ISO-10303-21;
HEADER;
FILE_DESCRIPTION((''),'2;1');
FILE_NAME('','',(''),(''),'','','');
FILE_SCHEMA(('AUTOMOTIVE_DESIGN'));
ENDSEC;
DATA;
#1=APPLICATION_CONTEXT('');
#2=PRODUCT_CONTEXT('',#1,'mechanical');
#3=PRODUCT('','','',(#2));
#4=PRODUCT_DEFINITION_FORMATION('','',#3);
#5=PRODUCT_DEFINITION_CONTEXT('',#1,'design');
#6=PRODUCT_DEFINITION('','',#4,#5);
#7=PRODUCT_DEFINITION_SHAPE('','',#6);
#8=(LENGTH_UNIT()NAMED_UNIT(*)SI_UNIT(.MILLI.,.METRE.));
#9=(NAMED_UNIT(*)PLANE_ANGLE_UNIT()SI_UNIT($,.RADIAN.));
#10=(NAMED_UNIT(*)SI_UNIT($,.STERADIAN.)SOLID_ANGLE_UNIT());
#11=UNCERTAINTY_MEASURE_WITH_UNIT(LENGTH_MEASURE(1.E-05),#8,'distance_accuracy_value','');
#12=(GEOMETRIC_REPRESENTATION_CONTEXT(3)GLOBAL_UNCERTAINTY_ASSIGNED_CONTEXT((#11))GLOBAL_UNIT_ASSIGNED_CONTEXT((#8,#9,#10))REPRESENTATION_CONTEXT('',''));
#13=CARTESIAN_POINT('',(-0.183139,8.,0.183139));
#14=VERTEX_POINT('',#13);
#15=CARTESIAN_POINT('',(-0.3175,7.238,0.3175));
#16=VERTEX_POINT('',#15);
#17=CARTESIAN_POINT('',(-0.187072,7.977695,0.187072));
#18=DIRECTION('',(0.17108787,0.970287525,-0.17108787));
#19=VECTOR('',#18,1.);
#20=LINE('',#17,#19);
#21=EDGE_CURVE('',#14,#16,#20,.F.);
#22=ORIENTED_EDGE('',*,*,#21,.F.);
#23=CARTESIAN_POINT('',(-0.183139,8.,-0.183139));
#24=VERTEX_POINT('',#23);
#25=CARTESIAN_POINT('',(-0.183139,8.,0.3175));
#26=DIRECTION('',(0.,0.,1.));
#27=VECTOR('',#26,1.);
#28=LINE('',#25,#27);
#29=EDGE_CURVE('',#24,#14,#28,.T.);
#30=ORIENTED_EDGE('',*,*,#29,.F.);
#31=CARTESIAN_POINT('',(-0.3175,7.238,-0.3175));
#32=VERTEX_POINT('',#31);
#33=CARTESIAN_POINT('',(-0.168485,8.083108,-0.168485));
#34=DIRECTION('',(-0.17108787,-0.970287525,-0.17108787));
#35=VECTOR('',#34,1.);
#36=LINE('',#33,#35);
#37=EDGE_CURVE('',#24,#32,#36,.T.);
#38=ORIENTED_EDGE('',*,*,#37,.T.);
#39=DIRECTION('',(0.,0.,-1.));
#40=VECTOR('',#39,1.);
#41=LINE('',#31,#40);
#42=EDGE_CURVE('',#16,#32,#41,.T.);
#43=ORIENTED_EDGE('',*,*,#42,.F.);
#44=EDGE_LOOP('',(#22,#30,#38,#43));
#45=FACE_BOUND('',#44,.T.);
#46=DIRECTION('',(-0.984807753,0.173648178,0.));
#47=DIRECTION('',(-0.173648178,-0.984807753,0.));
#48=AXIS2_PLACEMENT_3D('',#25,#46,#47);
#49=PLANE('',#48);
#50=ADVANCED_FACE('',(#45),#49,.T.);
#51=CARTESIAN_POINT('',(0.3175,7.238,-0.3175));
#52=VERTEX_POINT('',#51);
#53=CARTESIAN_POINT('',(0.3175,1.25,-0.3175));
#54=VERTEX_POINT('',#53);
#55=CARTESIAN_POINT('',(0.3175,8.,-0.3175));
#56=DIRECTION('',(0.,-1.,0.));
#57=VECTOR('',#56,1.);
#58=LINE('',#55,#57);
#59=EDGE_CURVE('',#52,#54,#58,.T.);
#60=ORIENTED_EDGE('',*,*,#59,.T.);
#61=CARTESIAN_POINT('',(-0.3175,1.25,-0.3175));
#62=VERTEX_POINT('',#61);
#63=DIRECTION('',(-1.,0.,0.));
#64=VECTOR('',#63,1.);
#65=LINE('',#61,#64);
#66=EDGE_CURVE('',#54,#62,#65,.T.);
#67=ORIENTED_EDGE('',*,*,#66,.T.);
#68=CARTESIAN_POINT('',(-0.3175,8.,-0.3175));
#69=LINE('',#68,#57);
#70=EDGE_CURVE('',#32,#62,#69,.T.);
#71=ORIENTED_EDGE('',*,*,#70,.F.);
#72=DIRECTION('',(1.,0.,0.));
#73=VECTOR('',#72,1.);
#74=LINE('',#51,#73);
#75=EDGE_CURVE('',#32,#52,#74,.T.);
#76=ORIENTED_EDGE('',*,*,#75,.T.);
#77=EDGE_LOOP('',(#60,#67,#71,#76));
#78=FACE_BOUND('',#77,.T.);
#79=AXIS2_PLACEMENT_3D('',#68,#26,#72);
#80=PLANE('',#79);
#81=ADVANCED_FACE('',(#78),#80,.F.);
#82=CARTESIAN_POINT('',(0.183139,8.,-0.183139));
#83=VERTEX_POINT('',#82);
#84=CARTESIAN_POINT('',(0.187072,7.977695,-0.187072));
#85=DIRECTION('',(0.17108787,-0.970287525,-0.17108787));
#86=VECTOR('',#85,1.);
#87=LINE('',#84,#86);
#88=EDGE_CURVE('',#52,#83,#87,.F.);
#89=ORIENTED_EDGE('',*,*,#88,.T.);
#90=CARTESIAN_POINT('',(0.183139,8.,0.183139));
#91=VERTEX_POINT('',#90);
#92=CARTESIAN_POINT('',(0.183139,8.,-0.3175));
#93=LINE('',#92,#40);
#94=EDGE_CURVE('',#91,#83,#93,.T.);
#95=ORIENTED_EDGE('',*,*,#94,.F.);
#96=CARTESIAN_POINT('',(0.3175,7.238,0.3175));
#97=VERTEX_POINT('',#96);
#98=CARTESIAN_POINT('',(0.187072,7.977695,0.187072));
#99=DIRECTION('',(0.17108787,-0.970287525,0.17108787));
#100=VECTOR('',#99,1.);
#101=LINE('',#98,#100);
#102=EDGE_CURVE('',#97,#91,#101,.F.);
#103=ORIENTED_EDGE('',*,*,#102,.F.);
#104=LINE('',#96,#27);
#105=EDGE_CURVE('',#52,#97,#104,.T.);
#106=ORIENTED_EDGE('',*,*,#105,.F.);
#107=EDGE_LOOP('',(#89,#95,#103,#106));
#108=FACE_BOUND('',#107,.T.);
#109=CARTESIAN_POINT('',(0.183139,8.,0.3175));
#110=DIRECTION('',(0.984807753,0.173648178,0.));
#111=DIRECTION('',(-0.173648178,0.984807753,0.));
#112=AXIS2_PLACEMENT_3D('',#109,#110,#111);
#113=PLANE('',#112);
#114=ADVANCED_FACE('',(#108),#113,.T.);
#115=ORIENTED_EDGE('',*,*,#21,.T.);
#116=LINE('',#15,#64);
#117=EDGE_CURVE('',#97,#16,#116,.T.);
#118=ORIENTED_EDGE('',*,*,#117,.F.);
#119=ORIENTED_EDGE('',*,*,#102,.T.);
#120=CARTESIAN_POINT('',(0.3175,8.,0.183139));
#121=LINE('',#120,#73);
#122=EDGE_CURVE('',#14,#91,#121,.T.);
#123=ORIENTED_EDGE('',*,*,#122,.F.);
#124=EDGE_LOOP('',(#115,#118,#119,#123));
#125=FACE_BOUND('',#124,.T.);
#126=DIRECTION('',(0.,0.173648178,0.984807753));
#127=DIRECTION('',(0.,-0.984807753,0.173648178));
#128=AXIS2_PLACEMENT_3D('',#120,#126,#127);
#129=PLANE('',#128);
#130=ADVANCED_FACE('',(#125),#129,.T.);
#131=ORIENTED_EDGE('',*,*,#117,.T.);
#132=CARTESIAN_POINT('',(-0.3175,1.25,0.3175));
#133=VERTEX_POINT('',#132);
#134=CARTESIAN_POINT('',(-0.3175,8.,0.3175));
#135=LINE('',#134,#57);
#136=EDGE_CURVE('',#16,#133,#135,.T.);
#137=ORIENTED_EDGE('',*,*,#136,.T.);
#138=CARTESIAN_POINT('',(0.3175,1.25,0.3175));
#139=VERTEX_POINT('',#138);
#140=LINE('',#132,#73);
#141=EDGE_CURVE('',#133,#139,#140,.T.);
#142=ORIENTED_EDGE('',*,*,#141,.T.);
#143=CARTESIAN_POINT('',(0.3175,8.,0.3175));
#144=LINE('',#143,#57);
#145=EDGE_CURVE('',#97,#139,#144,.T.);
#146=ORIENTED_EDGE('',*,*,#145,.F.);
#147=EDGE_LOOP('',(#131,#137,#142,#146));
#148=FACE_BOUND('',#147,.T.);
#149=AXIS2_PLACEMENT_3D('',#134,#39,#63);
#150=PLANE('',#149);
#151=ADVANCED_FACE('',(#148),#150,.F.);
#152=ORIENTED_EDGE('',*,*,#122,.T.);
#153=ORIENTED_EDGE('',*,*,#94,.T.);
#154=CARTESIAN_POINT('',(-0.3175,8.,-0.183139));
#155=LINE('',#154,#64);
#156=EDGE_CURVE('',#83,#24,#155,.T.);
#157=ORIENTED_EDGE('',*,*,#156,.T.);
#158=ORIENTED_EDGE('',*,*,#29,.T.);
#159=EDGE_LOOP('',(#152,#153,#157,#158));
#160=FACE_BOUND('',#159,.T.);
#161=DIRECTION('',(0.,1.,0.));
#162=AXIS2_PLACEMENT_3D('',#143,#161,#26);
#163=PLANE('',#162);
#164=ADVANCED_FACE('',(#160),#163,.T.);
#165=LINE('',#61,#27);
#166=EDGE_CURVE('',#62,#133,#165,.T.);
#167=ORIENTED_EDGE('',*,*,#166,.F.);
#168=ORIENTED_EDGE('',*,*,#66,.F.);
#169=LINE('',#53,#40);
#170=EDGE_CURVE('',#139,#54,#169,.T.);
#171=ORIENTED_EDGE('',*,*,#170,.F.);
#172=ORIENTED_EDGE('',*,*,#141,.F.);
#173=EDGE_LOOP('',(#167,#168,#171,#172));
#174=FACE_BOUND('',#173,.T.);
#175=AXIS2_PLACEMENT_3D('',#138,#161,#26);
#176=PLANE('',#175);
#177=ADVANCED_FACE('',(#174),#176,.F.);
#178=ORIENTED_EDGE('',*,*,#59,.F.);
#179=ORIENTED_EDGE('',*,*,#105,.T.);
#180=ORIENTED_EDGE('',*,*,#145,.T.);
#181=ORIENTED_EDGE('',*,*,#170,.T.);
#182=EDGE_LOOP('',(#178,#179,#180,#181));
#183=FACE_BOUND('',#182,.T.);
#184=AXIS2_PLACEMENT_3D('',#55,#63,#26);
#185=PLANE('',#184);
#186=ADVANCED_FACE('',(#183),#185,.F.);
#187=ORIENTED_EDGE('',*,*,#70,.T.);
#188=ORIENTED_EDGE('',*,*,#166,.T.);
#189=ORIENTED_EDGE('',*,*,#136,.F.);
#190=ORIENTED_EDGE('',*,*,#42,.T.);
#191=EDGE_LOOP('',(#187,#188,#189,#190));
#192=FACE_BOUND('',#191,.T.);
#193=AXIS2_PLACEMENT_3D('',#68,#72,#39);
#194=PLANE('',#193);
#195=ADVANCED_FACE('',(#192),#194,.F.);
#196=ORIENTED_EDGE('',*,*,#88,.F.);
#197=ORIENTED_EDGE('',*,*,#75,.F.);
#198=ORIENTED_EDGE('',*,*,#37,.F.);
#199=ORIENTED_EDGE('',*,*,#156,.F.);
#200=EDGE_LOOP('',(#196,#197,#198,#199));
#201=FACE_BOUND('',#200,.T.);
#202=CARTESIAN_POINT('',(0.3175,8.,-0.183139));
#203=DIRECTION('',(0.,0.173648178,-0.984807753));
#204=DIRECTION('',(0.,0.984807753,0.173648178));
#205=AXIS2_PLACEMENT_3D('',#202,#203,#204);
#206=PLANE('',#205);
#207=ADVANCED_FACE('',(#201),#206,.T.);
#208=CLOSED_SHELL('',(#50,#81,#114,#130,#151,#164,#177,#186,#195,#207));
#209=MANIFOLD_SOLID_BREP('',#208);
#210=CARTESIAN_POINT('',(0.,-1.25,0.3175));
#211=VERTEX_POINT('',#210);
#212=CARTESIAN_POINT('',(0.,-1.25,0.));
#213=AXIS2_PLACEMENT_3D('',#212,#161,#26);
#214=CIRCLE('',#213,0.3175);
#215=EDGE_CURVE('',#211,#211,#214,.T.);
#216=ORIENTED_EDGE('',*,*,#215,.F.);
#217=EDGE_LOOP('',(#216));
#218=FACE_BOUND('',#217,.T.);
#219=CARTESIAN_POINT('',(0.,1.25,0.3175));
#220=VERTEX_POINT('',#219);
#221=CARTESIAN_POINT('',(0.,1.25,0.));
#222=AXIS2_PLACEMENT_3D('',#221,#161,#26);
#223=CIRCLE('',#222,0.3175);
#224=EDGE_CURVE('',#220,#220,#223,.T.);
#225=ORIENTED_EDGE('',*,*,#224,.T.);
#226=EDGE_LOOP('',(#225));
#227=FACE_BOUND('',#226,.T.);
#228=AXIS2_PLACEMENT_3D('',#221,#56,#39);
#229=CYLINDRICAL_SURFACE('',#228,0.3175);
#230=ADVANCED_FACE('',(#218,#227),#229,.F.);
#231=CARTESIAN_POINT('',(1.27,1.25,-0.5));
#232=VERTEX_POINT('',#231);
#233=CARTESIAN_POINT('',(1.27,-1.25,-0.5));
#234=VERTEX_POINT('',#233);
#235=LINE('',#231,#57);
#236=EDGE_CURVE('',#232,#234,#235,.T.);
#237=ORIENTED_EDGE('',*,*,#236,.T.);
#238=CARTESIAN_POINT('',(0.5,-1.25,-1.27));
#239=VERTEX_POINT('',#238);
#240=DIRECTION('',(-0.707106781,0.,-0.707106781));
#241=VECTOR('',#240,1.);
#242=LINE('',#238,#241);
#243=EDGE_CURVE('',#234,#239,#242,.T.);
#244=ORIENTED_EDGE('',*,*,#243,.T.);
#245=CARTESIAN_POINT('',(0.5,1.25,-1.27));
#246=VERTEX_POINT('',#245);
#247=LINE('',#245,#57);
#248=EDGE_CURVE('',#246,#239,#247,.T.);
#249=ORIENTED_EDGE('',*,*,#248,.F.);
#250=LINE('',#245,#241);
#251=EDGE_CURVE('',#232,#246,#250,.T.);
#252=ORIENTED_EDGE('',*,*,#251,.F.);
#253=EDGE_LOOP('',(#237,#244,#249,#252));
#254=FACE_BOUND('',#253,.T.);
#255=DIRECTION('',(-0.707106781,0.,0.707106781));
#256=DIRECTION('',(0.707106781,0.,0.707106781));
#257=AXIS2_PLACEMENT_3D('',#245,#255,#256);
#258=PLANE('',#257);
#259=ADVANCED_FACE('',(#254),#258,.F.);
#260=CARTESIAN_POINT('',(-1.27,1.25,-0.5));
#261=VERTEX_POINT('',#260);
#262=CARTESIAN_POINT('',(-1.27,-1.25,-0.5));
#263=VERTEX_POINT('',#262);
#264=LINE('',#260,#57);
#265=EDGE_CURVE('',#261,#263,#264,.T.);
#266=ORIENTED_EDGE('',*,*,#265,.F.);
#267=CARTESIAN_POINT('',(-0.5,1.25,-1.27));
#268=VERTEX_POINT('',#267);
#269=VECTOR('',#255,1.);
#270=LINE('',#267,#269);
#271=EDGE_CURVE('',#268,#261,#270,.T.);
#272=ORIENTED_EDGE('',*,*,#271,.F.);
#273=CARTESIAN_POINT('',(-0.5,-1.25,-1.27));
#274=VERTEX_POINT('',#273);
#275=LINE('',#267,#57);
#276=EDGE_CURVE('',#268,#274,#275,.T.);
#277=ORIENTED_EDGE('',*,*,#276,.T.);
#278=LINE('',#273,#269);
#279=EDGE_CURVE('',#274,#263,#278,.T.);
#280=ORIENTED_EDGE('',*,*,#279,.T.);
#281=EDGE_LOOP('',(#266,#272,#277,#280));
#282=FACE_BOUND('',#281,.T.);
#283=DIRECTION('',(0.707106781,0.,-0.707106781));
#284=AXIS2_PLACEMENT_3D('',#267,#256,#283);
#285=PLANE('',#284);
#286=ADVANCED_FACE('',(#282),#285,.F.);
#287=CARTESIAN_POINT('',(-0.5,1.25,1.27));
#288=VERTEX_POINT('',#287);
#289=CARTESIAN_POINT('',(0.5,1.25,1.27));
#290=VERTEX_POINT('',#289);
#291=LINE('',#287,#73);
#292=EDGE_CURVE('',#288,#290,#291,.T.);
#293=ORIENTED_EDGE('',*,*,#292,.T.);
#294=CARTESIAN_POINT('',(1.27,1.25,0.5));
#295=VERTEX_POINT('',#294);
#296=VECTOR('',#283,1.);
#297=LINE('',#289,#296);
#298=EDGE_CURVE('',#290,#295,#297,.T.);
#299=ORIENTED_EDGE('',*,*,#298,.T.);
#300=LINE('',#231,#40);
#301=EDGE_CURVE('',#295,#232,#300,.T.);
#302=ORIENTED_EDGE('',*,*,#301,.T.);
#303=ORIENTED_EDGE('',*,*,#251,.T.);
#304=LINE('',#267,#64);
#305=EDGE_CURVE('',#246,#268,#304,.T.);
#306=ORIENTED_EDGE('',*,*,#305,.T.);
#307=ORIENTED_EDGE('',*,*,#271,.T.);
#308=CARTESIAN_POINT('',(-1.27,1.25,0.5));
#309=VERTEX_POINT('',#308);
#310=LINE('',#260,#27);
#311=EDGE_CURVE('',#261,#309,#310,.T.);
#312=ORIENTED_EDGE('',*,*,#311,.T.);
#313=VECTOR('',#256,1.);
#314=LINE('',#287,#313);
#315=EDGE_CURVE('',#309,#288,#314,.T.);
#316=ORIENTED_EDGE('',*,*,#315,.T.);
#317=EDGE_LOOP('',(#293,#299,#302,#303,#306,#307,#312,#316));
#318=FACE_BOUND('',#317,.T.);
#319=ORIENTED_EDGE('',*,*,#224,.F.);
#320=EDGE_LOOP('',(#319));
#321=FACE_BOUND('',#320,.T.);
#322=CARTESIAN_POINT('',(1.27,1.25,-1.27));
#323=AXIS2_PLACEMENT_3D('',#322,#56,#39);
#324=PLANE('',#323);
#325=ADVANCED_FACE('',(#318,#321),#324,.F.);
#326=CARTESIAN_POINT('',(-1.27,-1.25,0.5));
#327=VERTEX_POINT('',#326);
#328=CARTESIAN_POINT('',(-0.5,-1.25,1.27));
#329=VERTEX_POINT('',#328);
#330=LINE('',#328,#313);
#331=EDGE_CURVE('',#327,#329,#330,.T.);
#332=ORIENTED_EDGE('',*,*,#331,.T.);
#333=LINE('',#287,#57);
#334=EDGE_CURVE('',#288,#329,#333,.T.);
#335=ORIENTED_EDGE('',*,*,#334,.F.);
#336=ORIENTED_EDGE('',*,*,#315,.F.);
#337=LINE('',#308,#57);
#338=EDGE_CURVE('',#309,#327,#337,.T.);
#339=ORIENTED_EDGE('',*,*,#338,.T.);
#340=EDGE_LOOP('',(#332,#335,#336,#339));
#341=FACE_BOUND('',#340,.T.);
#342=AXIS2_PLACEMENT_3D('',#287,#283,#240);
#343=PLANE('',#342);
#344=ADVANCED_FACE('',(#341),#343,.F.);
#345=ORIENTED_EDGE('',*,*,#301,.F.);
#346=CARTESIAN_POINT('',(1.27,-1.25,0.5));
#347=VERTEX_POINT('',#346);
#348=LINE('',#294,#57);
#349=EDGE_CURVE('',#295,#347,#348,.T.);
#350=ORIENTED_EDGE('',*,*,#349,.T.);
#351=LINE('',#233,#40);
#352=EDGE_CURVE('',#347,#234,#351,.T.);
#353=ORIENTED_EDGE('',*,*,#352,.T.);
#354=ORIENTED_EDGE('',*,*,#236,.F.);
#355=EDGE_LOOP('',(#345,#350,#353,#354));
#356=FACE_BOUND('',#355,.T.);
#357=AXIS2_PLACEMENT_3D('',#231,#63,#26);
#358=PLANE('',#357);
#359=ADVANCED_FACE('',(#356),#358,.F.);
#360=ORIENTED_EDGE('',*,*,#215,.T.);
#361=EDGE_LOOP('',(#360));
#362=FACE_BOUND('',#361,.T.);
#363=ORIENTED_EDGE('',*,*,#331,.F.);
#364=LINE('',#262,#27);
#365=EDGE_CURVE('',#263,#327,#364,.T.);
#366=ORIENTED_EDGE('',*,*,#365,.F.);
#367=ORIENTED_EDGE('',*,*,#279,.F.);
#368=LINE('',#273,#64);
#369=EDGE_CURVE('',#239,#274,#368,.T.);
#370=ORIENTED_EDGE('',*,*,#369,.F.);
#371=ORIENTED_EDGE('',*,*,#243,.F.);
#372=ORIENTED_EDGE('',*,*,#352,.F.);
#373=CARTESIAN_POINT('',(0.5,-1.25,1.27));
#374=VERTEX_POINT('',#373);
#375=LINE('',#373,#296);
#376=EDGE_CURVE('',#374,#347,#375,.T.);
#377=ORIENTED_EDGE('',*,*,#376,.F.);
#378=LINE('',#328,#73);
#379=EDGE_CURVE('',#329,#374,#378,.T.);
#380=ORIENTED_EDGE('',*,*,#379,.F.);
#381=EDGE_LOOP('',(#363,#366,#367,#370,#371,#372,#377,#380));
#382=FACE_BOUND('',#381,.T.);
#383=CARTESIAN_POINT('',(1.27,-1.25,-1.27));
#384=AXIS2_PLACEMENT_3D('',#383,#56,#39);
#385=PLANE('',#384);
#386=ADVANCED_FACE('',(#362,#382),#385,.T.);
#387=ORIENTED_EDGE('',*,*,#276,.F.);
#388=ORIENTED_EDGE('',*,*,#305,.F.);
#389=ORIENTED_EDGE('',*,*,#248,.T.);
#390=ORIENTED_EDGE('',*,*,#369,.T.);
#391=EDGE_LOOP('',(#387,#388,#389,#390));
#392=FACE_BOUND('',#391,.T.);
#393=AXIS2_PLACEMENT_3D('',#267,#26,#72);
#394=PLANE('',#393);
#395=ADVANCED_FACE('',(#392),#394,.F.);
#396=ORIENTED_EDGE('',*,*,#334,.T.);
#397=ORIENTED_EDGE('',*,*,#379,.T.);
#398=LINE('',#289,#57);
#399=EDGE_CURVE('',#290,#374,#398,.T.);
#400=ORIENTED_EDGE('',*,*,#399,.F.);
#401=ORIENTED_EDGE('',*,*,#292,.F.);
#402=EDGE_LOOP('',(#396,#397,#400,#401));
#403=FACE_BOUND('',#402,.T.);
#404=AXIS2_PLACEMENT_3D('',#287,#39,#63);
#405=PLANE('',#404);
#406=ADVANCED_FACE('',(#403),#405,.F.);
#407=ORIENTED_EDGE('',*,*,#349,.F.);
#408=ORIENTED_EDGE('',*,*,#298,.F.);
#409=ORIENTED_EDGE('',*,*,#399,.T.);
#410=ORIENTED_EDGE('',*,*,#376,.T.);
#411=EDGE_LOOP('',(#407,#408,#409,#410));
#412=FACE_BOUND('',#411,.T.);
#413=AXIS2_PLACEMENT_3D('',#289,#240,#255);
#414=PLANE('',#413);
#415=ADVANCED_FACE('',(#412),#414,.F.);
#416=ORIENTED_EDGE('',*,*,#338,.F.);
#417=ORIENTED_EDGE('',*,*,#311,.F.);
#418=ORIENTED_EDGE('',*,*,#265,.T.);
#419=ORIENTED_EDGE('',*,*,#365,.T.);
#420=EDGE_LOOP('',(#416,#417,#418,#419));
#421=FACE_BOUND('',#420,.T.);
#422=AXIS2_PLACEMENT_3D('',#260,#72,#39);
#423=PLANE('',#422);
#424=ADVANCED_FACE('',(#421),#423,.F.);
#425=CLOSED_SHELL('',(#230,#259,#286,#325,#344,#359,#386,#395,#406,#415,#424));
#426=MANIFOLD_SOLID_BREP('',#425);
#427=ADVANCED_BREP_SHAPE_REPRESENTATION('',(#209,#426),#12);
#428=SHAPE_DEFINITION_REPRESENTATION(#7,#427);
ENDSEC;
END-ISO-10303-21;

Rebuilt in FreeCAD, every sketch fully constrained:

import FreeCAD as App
import Part
import Sketcher
from FreeCAD import Vector
Q = App.Units.Quantity


def edges_at(feature, points):
    """Names of the edges that pass closest to the given points."""
    edges = feature.Shape.Edges
    near = lambda p: min(range(len(edges)), key=lambda i: edges[i].distToShape(Part.Vertex(*p))[0])
    return sorted({f"Edge{near(p) + 1}" for p in points})

doc = App.newDocument("Part")
params = doc.addObject("Spreadsheet::Sheet", "Params")
for row, (alias, value) in enumerate([
    ("sketch1_diameter", "0.025 in"),
    ("pad1_length", "2.5 mm"),
    ("sketch2_width", "0.025 in"),
    ("pad2_length", "6.75 mm"),
    ("chamfer_size", "0.03 in"),
    ("chamfer_size2", "0.134361 mm"),
    ("chamfer2_size", "0.03 in"),
    ("chamfer2_size2", "0.134361 mm"),
    ("chamfer3_size", "0.03 in"),
    ("chamfer3_size2", "0.134361 mm"),
    ("chamfer4_size", "0.03 in"),
    ("chamfer4_size2", "0.134361 mm"),
], start=1):
    params.set(f"A{row}", alias)
    params.set(f"B{row}", "=" + value)
    params.setAlias(f"B{row}", alias)

body = doc.addObject("PartDesign::Body", "Body")

# Sketch on XZ plane
sketch1 = doc.addObject("Sketcher::SketchObject", "Sketch")
body.addObject(sketch1)
sketch1.AttachmentSupport = (doc.XZ_Plane, [""])
sketch1.MapMode = "FlatFace"
sketch1.addGeometry([
    Part.LineSegment(Vector(-0.5, -1.27, 0), Vector(-1.27, -0.5, 0)),  # 0
    Part.LineSegment(Vector(-1.27, -0.5, 0), Vector(-1.27, 0.5, 0)),  # 1
    Part.LineSegment(Vector(-1.27, 0.5, 0), Vector(-0.5, 1.27, 0)),  # 2
    Part.LineSegment(Vector(-0.5, 1.27, 0), Vector(0.5, 1.27, 0)),  # 3
    Part.LineSegment(Vector(0.5, 1.27, 0), Vector(1.27, 0.5, 0)),  # 4
    Part.LineSegment(Vector(1.27, 0.5, 0), Vector(1.27, -0.5, 0)),  # 5
    Part.LineSegment(Vector(1.27, -0.5, 0), Vector(0.5, -1.27, 0)),  # 6
    Part.LineSegment(Vector(0.5, -1.27, 0), Vector(-0.5, -1.27, 0)),  # 7
    Part.Circle(Vector(0, 0, 0), Vector(0, 0, 1), 0.32),  # 8
], False)
sketch1.addConstraint([
    Sketcher.Constraint("Coincident", 0, 2, 1, 1),
    Sketcher.Constraint("Coincident", 1, 2, 2, 1),
    Sketcher.Constraint("Coincident", 2, 2, 3, 1),
    Sketcher.Constraint("Coincident", 3, 2, 4, 1),
    Sketcher.Constraint("Coincident", 4, 2, 5, 1),
    Sketcher.Constraint("Coincident", 5, 2, 6, 1),
    Sketcher.Constraint("Coincident", 6, 2, 7, 1),
    Sketcher.Constraint("Coincident", 7, 2, 0, 1),
    Sketcher.Constraint("Vertical", 1),
    Sketcher.Constraint("Horizontal", 3),
    Sketcher.Constraint("Vertical", 5),
    Sketcher.Constraint("Horizontal", 7),
    Sketcher.Constraint("Coincident", 8, 3, -1, 1),
    Sketcher.Constraint("Symmetric", 0, 2, 4, 2, -1, 1),
    Sketcher.Constraint("Symmetric", 2, 2, 6, 2, -1, 1),
    Sketcher.Constraint("Perpendicular", 0, 2),
    Sketcher.Constraint("Perpendicular", 2, 4),
    Sketcher.Constraint("Perpendicular", 4, 6),
    Sketcher.Constraint("Horizontal", 1, 2, 4, 2),
    Sketcher.Constraint("Vertical", 3, 2, 6, 2),
    Sketcher.Constraint("Equal", 7, 1),
    Sketcher.Constraint("Diameter", 8, Q("0.025 in")),
    Sketcher.Constraint("DistanceX", 1, 2, 4, 2, Q("0.1 in")),
    Sketcher.Constraint("DistanceX", 3, 1, 3, 2, 1.0),
])
sketch1.setExpression("Constraints[21]", "Params.sketch1_diameter")
pad1 = doc.addObject("PartDesign::Pad", "Pad")
body.addObject(pad1)
pad1.Profile = sketch1
pad1.setExpression("Length", "Params.pad1_length")
pad1.Midplane = True
body2 = doc.addObject("PartDesign::Body", "Body001")

# Sketch on XZ plane
sketch2 = doc.addObject("Sketcher::SketchObject", "Sketch001")
body2.addObject(sketch2)
sketch2.AttachmentSupport = (doc.getObject("XZ_Plane001"), [""])
sketch2.MapMode = "FlatFace"
sketch2.AttachmentOffset = App.Placement(Vector(0, 0, -1.25), App.Rotation())
sketch2.addGeometry([
    Part.LineSegment(Vector(-0.3, -0.3, 0), Vector(-0.3, 0.3, 0)),
    Part.LineSegment(Vector(-0.3, 0.3, 0), Vector(0.3, 0.3, 0)),
    Part.LineSegment(Vector(0.3, 0.3, 0), Vector(0.3, -0.3, 0)),
    Part.LineSegment(Vector(0.3, -0.3, 0), Vector(-0.3, -0.3, 0)),
], False)
sketch2.addConstraint([
    Sketcher.Constraint("Coincident", 0, 2, 1, 1),
    Sketcher.Constraint("Coincident", 1, 2, 2, 1),
    Sketcher.Constraint("Coincident", 2, 2, 3, 1),
    Sketcher.Constraint("Coincident", 3, 2, 0, 1),
    Sketcher.Constraint("Vertical", 0),
    Sketcher.Constraint("Horizontal", 1),
    Sketcher.Constraint("Vertical", 2),
    Sketcher.Constraint("Horizontal", 3),
    Sketcher.Constraint("Symmetric", 0, 2, 2, 2, -1, 1),
    Sketcher.Constraint("Equal", 3, 0),
    Sketcher.Constraint("DistanceX", 1, 1, 1, 2, Q("0.025 in")),
])
sketch2.setExpression("Constraints[10]", "Params.sketch2_width")
pad2 = doc.addObject("PartDesign::Pad", "Pad001")
body2.addObject(pad2)
pad2.Profile = sketch2
pad2.setExpression("Length", "Params.pad2_length")
pad2.Reversed = True
doc.recompute()

chamfer = doc.addObject("PartDesign::Chamfer", "Chamfer")
body2.addObject(chamfer)
chamfer.Base = (pad2, edges_at(pad2, [(-0.318, 8, 0)]))
chamfer.ChamferType = "Two distances"
chamfer.setExpression("Size", "Params.chamfer_size")
chamfer.setExpression("Size2", "Params.chamfer_size2")
doc.recompute()

chamfer2 = doc.addObject("PartDesign::Chamfer", "Chamfer001")
body2.addObject(chamfer2)
chamfer2.Base = (chamfer, edges_at(chamfer, [(0.067, 8, 0.318)]))
chamfer2.ChamferType = "Two distances"
chamfer2.setExpression("Size", "Params.chamfer2_size")
chamfer2.setExpression("Size2", "Params.chamfer2_size2")
doc.recompute()

chamfer3 = doc.addObject("PartDesign::Chamfer", "Chamfer002")
body2.addObject(chamfer3)
chamfer3.Base = (chamfer2, edges_at(chamfer2, [(0.318, 8, -0.067)]))
chamfer3.ChamferType = "Two distances"
chamfer3.setExpression("Size", "Params.chamfer3_size")
chamfer3.setExpression("Size2", "Params.chamfer3_size2")
chamfer3.FlipDirection = True
doc.recompute()

chamfer4 = doc.addObject("PartDesign::Chamfer", "Chamfer003")
body2.addObject(chamfer4)
chamfer4.Base = (chamfer3, edges_at(chamfer3, [(0, 8, -0.318)]))
chamfer4.ChamferType = "Two distances"
chamfer4.setExpression("Size", "Params.chamfer4_size")
chamfer4.setExpression("Size2", "Params.chamfer4_size2")
chamfer4.FlipDirection = True

doc.recompute()
